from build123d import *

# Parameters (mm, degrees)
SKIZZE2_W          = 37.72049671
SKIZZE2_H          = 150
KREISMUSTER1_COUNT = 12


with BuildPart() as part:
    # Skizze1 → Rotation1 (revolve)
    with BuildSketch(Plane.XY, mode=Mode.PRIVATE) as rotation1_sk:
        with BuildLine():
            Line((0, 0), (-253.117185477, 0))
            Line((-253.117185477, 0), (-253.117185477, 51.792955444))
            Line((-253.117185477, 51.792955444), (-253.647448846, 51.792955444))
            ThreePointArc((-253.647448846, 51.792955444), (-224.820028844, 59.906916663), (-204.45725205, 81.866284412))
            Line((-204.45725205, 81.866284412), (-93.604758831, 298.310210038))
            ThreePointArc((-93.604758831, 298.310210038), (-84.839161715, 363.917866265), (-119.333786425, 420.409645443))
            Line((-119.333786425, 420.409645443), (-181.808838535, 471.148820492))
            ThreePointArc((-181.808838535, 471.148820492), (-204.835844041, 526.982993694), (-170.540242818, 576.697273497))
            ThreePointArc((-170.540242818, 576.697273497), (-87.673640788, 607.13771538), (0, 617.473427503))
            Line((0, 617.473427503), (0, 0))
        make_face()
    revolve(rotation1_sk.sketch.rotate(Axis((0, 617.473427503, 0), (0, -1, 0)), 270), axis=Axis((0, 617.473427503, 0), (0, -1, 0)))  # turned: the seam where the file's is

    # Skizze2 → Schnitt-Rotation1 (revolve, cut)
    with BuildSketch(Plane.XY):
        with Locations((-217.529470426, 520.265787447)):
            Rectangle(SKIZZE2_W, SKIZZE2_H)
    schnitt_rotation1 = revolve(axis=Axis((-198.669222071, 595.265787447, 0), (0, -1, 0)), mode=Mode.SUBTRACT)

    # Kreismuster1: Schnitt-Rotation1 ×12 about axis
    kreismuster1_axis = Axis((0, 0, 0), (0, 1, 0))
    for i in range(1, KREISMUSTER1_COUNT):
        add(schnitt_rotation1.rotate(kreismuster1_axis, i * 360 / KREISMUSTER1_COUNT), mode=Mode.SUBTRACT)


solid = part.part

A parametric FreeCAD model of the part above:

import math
import FreeCAD as App
import Part
import Sketcher

V = App.Vector


def add_polygon(sketch, points):
    """Adds a closed chain of lines whose ends are joined by coincident constraints."""
    first, n = sketch.GeometryCount, len(points)
    for a, b in zip(points, points[1:] + points[:1]):
        sketch.addGeometry(Part.LineSegment(App.Vector(*a, 0), App.Vector(*b, 0)), False)
    for i in range(n):
        sketch.addConstraint(Sketcher.Constraint("Coincident", first + i, 2, first + (i + 1) % n, 1))

doc = App.newDocument("Part")
params = doc.addObject("Spreadsheet::Sheet", "Params")
for row, (alias, value) in enumerate([
    ("revolution_angle", "360 deg"),
    ("sketch2_height", "150 mm"),
    ("groove_angle", "360 deg"),
], start=1):
    params.set(f"A{row}", alias)
    params.set(f"B{row}", "=" + value)
    params.setAlias(f"B{row}", alias)

body = doc.addObject("PartDesign::Body", "Body")

# Sketch on XY plane
sketch1 = body.newObject("Sketcher::SketchObject", "Sketch")
sketch1.AttachmentSupport = (doc.getObject("XY_Plane"), [""])
sketch1.MapMode = "FlatFace"
sketch1.addGeometry([
    Part.LineSegment(V(-253.1, 0, 0), V(0, 0, 0)),  # 0
    Part.LineSegment(V(0, 0, 0), V(0, 617.5, 0)),  # 1
    Part.ArcOfCircle(Part.Circle(V(0, 240.5, 0), V(0, 0, 1), 377), math.radians(90), math.radians(117)),  # 2
    Part.ArcOfCircle(Part.Circle(V(-141.9, 520.3, 0), V(0, 0, 1), 63.3), math.radians(117), math.radians(231)),  # 3
    Part.LineSegment(V(-181.8, 471.1, 0), V(-119.3, 420.4, 0)),  # 4
    Part.ArcOfCircle(Part.Circle(V(-181.8, 343.5, 0), V(0, 0, 1), 99.1), math.radians(-27), math.radians(51)),  # 5
    Part.LineSegment(V(-93.6, 298.3, 0), V(-204.5, 81.9, 0)),  # 6
    Part.ArcOfCircle(Part.Circle(V(-253.6, 107.1, 0), V(0, 0, 1), 55.3), math.radians(-90), math.radians(-27)),  # 7
    Part.LineSegment(V(-253.6, 51.8, 0), V(-253.1, 51.8, 0)),  # 8
    Part.LineSegment(V(-253.1, 51.8, 0), V(-253.1, 0, 0)),  # 9
], False)
sketch1.addConstraint([
    Sketcher.Constraint("Coincident", 0, 2, 1, 1),
    Sketcher.Constraint("Coincident", 1, 2, 2, 1),
    Sketcher.Constraint("Tangent", 2, 2, 3, 1),
    Sketcher.Constraint("Tangent", 3, 2, 4, 1),
    Sketcher.Constraint("Tangent", 4, 2, 5, 2),
    Sketcher.Constraint("Tangent", 5, 1, 6, 1),
    Sketcher.Constraint("Tangent", 6, 2, 7, 2),
    Sketcher.Constraint("Tangent", 7, 1, 8, 1),
    Sketcher.Constraint("Coincident", 8, 2, 9, 1),
    Sketcher.Constraint("Coincident", 9, 2, 0, 1),
    Sketcher.Constraint("Horizontal", 0),
    Sketcher.Constraint("Vertical", 1),
    Sketcher.Constraint("Horizontal", 8),
    Sketcher.Constraint("Vertical", 9),
    Sketcher.Constraint("Coincident", 0, 2, -1, 1),
    Sketcher.Constraint("PointOnObject", 2, 3, -2),
    Sketcher.Constraint("Vertical", 5, 3, 3, 2),
    Sketcher.Constraint("Radius", 5, 99.099201),
    Sketcher.Constraint("Radius", 2, 377.017768),
    Sketcher.Constraint("Radius", 3, 63.274955),
    Sketcher.Constraint("Radius", 7, 55.266256),
    Sketcher.Constraint("DistanceX", 0, 1, 0, 2, 253.117185),
    Sketcher.Constraint("DistanceX", 8, 1, 8, 2, 0.530263),
    Sketcher.Constraint("DistanceY", 1, 1, 1, 2, 617.473428),
    Sketcher.Constraint("DistanceY", 9, 2, 9, 1, 51.792955),
    Sketcher.Constraint("DistanceX", 5, 3, -1, 1, 181.808839),
    Sketcher.Constraint("DistanceY", -1, 1, 5, 3, 343.48423),
])
revolution = body.newObject("PartDesign::Revolution", "Revolution")
revolution.Profile = sketch1
revolution.ReferenceAxis = (sketch1, ["V_Axis"])
revolution.setExpression("Angle", "Params.revolution_angle")

# Sketch on XY plane
sketch2 = body.newObject("Sketcher::SketchObject", "Sketch001")
sketch2.AttachmentSupport = (doc.getObject("XY_Plane"), [""])
sketch2.MapMode = "FlatFace"
add_polygon(sketch2, [(-236, 595), (-236, 445), (-199, 445), (-199, 595)])  # lines 0-3
sketch2.addGeometry(Part.LineSegment(V(-199, 595, 0), V(-199, 445, 0)), True)  # axis
sketch2.addConstraint([
    Sketcher.Constraint("Vertical", 0),
    Sketcher.Constraint("Horizontal", 1),
    Sketcher.Constraint("Vertical", 2),
    Sketcher.Constraint("Horizontal", 3),
    Sketcher.Constraint("Vertical", 4),
    Sketcher.Constraint("Coincident", 4, 1, 2, 2),
    Sketcher.Constraint("Horizontal", 0, 2, 4, 2),
    Sketcher.Constraint("DistanceY", 0, 2, 0, 1, 150.0),
    Sketcher.Constraint("DistanceX", 1, 1, 1, 2, 37.720497),
    Sketcher.Constraint("DistanceX", 0, 2, -1, 1, 236.389719),
    Sketcher.Constraint("DistanceY", -1, 1, 0, 2, 445.265787),
])
sketch2.setExpression("Constraints[11]", "Params.sketch2_height")
groove = body.newObject("PartDesign::Groove", "Groove")
groove.Profile = sketch2
groove.ReferenceAxis = (sketch2, ["Axis0"])
groove.setExpression("Angle", "Params.groove_angle")
doc.recompute()

polarpattern = body.newObject("PartDesign::PolarPattern", "PolarPattern")
polarpattern.Originals = [groove]
polarpattern.Axis = (doc.getObject("Y_Axis"), [""])
polarpattern.Angle = 360
polarpattern.Occurrences = 12
body.Tip = polarpattern

doc.recompute()
